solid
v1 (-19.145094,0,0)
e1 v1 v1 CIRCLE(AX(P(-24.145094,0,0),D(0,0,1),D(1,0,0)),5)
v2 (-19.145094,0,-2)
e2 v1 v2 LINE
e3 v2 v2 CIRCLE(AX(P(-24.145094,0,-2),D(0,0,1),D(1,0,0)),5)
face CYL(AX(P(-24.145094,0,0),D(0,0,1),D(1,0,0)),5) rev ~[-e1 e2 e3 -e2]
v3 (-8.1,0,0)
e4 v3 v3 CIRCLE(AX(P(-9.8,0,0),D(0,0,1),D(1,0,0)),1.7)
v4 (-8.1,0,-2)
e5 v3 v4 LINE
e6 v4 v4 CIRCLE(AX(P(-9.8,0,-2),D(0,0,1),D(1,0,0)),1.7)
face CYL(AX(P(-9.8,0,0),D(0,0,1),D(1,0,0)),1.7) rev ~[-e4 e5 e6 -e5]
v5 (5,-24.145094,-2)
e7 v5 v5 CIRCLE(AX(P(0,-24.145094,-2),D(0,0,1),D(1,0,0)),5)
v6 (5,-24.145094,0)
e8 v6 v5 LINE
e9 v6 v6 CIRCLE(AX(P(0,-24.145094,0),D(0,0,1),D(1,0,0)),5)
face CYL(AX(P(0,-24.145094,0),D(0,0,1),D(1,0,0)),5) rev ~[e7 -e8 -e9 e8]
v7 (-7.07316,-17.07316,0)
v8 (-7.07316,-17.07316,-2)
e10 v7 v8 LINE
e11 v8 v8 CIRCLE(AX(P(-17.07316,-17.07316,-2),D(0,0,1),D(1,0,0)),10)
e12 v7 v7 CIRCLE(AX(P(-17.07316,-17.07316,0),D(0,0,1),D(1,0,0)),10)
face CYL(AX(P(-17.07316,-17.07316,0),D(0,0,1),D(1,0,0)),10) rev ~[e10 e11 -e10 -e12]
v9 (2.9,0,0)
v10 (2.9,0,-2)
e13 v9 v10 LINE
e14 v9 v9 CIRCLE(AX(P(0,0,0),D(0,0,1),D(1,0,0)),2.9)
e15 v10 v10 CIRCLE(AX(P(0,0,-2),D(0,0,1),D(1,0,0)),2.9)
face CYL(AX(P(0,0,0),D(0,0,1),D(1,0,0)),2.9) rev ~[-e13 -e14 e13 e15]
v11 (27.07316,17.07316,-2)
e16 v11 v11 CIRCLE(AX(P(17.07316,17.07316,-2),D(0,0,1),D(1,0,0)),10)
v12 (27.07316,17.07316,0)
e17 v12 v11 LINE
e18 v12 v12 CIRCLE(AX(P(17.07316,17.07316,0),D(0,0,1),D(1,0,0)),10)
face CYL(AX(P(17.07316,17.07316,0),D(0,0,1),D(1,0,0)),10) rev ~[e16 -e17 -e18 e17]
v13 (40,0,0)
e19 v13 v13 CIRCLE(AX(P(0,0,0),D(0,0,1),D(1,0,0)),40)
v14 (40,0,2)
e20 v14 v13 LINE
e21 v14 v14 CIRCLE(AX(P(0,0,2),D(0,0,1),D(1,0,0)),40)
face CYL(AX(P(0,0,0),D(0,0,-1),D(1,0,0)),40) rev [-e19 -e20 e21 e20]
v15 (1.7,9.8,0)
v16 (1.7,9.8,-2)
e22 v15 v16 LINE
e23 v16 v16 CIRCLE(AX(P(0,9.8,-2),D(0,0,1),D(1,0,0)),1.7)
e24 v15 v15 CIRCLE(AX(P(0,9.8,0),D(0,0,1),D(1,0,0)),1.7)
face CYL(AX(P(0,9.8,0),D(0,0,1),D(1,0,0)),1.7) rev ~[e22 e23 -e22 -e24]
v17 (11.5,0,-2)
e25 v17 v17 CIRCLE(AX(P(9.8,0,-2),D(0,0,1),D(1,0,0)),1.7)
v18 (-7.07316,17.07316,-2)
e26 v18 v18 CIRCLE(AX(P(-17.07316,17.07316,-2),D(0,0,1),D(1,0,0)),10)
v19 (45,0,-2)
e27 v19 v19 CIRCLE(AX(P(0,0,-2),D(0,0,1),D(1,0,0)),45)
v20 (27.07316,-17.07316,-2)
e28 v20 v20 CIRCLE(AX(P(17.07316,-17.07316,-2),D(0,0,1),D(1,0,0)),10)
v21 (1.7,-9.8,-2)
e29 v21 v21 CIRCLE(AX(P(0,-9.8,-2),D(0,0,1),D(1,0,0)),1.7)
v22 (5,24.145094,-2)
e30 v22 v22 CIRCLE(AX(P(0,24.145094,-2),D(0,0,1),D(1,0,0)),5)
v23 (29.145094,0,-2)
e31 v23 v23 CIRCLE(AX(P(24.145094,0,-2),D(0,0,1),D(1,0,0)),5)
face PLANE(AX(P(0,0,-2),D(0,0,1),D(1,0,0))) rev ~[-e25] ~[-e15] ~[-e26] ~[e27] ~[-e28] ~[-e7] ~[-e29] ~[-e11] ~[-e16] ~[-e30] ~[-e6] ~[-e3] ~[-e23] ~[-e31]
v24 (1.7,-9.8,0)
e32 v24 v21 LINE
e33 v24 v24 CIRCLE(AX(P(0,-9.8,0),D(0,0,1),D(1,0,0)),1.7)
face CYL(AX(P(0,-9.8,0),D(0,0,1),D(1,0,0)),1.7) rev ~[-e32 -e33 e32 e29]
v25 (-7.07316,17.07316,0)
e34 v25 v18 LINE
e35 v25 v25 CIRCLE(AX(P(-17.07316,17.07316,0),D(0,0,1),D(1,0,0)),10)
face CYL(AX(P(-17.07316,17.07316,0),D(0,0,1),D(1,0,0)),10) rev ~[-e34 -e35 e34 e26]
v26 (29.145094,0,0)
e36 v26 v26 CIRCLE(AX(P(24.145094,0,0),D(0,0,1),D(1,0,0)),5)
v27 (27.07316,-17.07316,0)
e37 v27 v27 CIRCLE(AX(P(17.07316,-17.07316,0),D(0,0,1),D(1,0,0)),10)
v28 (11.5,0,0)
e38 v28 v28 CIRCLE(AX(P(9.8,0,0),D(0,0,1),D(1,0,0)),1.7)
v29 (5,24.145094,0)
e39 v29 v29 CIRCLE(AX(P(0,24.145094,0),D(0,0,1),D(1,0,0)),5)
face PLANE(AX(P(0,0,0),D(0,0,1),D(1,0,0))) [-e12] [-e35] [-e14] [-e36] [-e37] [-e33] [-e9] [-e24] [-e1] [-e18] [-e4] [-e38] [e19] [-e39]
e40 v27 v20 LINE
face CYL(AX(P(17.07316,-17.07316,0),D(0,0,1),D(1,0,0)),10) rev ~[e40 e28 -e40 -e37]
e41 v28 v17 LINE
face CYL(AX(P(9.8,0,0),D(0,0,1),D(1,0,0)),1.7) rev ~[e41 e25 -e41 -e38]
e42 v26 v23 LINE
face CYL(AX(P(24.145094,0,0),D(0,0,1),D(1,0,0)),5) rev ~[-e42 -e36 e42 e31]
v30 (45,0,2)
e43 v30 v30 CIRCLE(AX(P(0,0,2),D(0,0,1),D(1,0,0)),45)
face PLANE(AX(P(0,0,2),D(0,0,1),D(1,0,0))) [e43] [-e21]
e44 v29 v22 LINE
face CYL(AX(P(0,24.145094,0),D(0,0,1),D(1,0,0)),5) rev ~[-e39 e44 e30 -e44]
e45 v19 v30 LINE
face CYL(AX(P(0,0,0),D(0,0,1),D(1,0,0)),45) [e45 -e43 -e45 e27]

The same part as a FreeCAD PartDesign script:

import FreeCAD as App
import Part
import Sketcher
from FreeCAD import Vector
Q = App.Units.Quantity

doc = App.newDocument("Part")
body = doc.addObject("PartDesign::Body", "Body")

sketch1 = doc.addObject("Sketcher::SketchObject", "Sketch")
body.addObject(sketch1)
sketch1.AttachmentSupport = (doc.XY_Plane, [""])
sketch1.MapMode = "FlatFace"
sketch1.addGeometry(Part.Circle(Vector(0, 0, 0), Vector(0, 0, 1), 45), False)
sketch1.addGeometry(Part.Circle(Vector(0, 0, 0), Vector(0, 0, 1), 40), False)
sketch1.addConstraint(Sketcher.Constraint("Coincident", 0, 3, -1, 1))
sketch1.addConstraint(Sketcher.Constraint("Coincident", 1, 3, -1, 1))
sketch1.addConstraint(Sketcher.Constraint("Diameter", 0, Q("90 mm")))
sketch1.addConstraint(Sketcher.Constraint("Diameter", 1, Q("80 mm")))
pad1 = doc.addObject("PartDesign::Pad", "Pad")
body.addObject(pad1)
pad1.Profile = sketch1
pad1.Length = 4
pad1.Midplane = True

sketch2 = doc.addObject("Sketcher::SketchObject", "Sketch001")
body.addObject(sketch2)
sketch2.AttachmentSupport = (doc.XY_Plane, [""])
sketch2.MapMode = "FlatFace"
sketch2.addGeometry(Part.Circle(Vector(0, 0, 0), Vector(0, 0, 1), 40), False)
sketch2.addGeometry(Part.Circle(Vector(-17.07316, -17.07316, 0), Vector(0, 0, 1), 10), False)
sketch2.addGeometry(Part.Circle(Vector(0, -24.145094, 0), Vector(0, 0, 1), 5), False)
sketch2.addGeometry(Part.Circle(Vector(17.07316, -17.07316, 0), Vector(0, 0, 1), 10), False)
sketch2.addGeometry(Part.Circle(Vector(0, -9.8, 0), Vector(0, 0, 1), 1.7), False)
sketch2.addGeometry(Part.Circle(Vector(-24.145094, 0, 0), Vector(0, 0, 1), 5), False)
sketch2.addGeometry(Part.Circle(Vector(-9.8, 0, 0), Vector(0, 0, 1), 1.7), False)
sketch2.addGeometry(Part.Circle(Vector(-17.07316, 17.07316, 0), Vector(0, 0, 1), 10), False)
sketch2.addGeometry(Part.Circle(Vector(0, 0, 0), Vector(0, 0, 1), 2.9), False)
sketch2.addGeometry(Part.Circle(Vector(9.8, 0, 0), Vector(0, 0, 1), 1.7), False)
sketch2.addGeometry(Part.Circle(Vector(0, 9.8, 0), Vector(0, 0, 1), 1.7), False)
sketch2.addGeometry(Part.Circle(Vector(24.145094, 0, 0), Vector(0, 0, 1), 5), False)
sketch2.addGeometry(Part.Circle(Vector(0, 24.145094, 0), Vector(0, 0, 1), 5), False)
sketch2.addGeometry(Part.Circle(Vector(17.07316, 17.07316, 0), Vector(0, 0, 1), 10), False)
sketch2.addConstraint(Sketcher.Constraint("Coincident", 0, 3, -1, 1))
sketch2.addConstraint(Sketcher.Constraint("Coincident", 8, 3, -1, 1))
sketch2.addConstraint(Sketcher.Constraint("Equal", 1, 3))
sketch2.addConstraint(Sketcher.Constraint("Equal", 2, 5))
sketch2.addConstraint(Sketcher.Constraint("Equal", 4, 6))
sketch2.addConstraint(Sketcher.Constraint("Equal", 3, 7))
sketch2.addConstraint(Sketcher.Constraint("Equal", 6, 9))
sketch2.addConstraint(Sketcher.Constraint("Equal", 9, 10))
sketch2.addConstraint(Sketcher.Constraint("Equal", 5, 11))
sketch2.addConstraint(Sketcher.Constraint("Equal", 11, 12))
sketch2.addConstraint(Sketcher.Constraint("Equal", 7, 13))
sketch2.addConstraint(Sketcher.Constraint("Symmetric", 3, 3, 7, 3, -1, 1))
sketch2.addConstraint(Sketcher.Constraint("Symmetric", 6, 3, 9, 3, -1, 1))
sketch2.addConstraint(Sketcher.Constraint("Symmetric", 4, 3, 10, 3, -1, 1))
sketch2.addConstraint(Sketcher.Constraint("Symmetric", 5, 3, 11, 3, -1, 1))
sketch2.addConstraint(Sketcher.Constraint("Symmetric", 2, 3, 12, 3, -1, 1))
sketch2.addConstraint(Sketcher.Constraint("Symmetric", 1, 3, 13, 3, -1, 1))
sketch2.addConstraint(Sketcher.Constraint("Symmetric", 1, 3, 3, 3, -2))
sketch2.addConstraint(Sketcher.Constraint("PointOnObject", 2, 3, -2))
sketch2.addConstraint(Sketcher.Constraint("PointOnObject", 4, 3, -2))
sketch2.addConstraint(Sketcher.Constraint("PointOnObject", 5, 3, -1))
sketch2.addConstraint(Sketcher.Constraint("PointOnObject", 6, 3, -1))
sketch2.addConstraint(Sketcher.Constraint("Diameter", 0, Q("80 mm")))
sketch2.addConstraint(Sketcher.Constraint("Diameter", 1, Q("20 mm")))
sketch2.addConstraint(Sketcher.Constraint("Diameter", 2, Q("10 mm")))
sketch2.addConstraint(Sketcher.Constraint("Diameter", 4, Q("3.4 mm")))
sketch2.addConstraint(Sketcher.Constraint("Diameter", 8, Q("5.8 mm")))
sketch2.addConstraint(Sketcher.Constraint("DistanceY", 4, 3, -1, 1, Q("9.8 mm")))
sketch2.addConstraint(Sketcher.Constraint("DistanceX", 6, 3, -1, 1, Q("9.8 mm")))
sketch2.addConstraint(Sketcher.Constraint("DistanceX", 1, 3, -1, 1, Q("17.07316 mm")))
sketch2.addConstraint(Sketcher.Constraint("DistanceY", 1, 3, -1, 1, Q("17.07316 mm")))
sketch2.addConstraint(Sketcher.Constraint("DistanceY", 2, 3, -1, 1, Q("24.145094 mm")))
sketch2.addConstraint(Sketcher.Constraint("DistanceX", 5, 3, -1, 1, Q("24.145094 mm")))
pad2 = doc.addObject("PartDesign::Pad", "Pad001")
body.addObject(pad2)
pad2.Profile = sketch2
pad2.Length = 2
pad2.Reversed = True

doc.recompute()
